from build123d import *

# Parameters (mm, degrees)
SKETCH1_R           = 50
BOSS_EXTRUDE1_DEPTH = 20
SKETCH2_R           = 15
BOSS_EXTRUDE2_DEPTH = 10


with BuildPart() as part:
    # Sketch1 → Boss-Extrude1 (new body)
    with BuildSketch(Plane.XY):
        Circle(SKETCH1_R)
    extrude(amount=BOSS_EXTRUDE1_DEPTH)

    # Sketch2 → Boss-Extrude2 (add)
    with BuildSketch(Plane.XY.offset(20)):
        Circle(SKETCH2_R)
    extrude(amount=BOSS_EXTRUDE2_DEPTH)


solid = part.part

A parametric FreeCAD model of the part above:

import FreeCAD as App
import Part
import Sketcher
from FreeCAD import Vector
Q = App.Units.Quantity

doc = App.newDocument("Part")
body = doc.addObject("PartDesign::Body", "Body")

sketch1 = body.newObject("Sketcher::SketchObject", "Sketch")
sketch1.AttachmentSupport = (doc.getObject("XY_Plane"), [""])
sketch1.MapMode = "FlatFace"
sketch1.addGeometry(Part.Circle(Vector(0, 0, 0), Vector(0, 0, 1), 50), False)
sketch1.addConstraint(Sketcher.Constraint("Coincident", 0, 3, -1, 1))
sketch1.addConstraint(Sketcher.Constraint("Diameter", 0, Q("100 mm")))
pad1 = body.newObject("PartDesign::Pad", "Pad")
pad1.Profile = sketch1
pad1.Length = 20

sketch2 = body.newObject("Sketcher::SketchObject", "Sketch001")
sketch2.AttachmentSupport = (doc.getObject("XY_Plane"), [""])
sketch2.MapMode = "FlatFace"
sketch2.AttachmentOffset = App.Placement(Vector(0, 0, 20), App.Rotation())
sketch2.addGeometry(Part.Circle(Vector(0, 0, 0), Vector(0, 0, 1), 15), False)
sketch2.addConstraint(Sketcher.Constraint("Coincident", 0, 3, -1, 1))
sketch2.addConstraint(Sketcher.Constraint("Diameter", 0, Q("30 mm")))
pad2 = body.newObject("PartDesign::Pad", "Pad001")
pad2.Profile = sketch2
pad2.Length = 10

doc.recompute()
